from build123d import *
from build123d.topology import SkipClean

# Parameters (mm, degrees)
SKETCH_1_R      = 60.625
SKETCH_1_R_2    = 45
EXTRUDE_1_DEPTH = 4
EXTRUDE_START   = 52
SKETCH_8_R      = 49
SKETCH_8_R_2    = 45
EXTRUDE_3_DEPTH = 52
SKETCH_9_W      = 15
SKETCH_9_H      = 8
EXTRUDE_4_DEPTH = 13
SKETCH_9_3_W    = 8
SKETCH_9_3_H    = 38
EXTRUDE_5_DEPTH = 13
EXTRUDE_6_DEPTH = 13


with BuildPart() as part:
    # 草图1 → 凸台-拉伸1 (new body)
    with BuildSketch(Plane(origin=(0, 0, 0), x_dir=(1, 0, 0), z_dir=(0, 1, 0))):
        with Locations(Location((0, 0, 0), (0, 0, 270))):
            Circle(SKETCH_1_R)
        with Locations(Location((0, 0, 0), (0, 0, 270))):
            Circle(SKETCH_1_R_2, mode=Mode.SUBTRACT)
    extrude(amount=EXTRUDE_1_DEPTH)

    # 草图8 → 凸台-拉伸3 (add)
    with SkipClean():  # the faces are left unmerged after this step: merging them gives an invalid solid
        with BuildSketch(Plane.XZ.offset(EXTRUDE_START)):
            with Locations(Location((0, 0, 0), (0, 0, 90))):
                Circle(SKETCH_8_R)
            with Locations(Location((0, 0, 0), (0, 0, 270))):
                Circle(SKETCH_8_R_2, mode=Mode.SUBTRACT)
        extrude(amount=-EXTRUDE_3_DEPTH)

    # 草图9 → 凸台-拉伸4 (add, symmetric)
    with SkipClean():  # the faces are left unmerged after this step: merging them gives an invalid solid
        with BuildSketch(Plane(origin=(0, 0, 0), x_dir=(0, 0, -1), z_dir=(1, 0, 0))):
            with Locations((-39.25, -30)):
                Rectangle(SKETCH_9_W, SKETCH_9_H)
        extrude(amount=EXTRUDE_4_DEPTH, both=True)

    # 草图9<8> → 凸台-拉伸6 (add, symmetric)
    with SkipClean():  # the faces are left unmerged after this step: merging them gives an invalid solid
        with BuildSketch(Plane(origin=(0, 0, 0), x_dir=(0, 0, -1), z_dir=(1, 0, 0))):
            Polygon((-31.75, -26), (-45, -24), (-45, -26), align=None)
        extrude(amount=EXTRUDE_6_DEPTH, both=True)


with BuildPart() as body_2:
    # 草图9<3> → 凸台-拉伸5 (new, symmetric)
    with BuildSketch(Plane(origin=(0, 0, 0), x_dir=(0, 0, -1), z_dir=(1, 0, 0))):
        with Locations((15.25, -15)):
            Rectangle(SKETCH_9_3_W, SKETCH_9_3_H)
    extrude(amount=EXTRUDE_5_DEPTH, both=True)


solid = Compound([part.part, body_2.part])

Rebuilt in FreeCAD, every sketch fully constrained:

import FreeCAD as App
import Part
import Sketcher
Q = App.Units.Quantity

doc = App.newDocument("Part")
body = doc.addObject("PartDesign::Body", "Body")

sketch1 = body.newObject("Sketcher::SketchObject", "Sketch")
sketch1.AttachmentSupport = (doc.getObject("XZ_Plane"), [""])
sketch1.MapMode = "FlatFace"
sketch1.addGeometry(Part.Circle(App.Vector(0, 0, 0), App.Vector(0, 0, 1), 61), False)
sketch1.addGeometry(Part.Circle(App.Vector(0, 0, 0), App.Vector(0, 0, 1), 45), False)
sketch1.addConstraint(Sketcher.Constraint("Coincident", 0, 3, -1, 1))
sketch1.addConstraint(Sketcher.Constraint("Coincident", 1, 3, -1, 1))
sketch1.addConstraint(Sketcher.Constraint("Diameter", 1, Q("90 mm")))
sketch1.addConstraint(Sketcher.Constraint("Diameter", 0, Q("121.25 mm")))
pad1 = body.newObject("PartDesign::Pad", "Pad")
pad1.Profile = sketch1
pad1.Length = 4
pad1.Reversed = True

sketch2 = body.newObject("Sketcher::SketchObject", "Sketch001")
sketch2.AttachmentSupport = (doc.getObject("XZ_Plane"), [""])
sketch2.MapMode = "FlatFace"
sketch2.AttachmentOffset = App.Placement(App.Vector(0, 0, 52), App.Rotation())
sketch2.addGeometry(Part.Circle(App.Vector(0, 0, 0), App.Vector(0, 0, 1), 49), False)
sketch2.addGeometry(Part.Circle(App.Vector(0, 0, 0), App.Vector(0, 0, 1), 45), False)
sketch2.addConstraint(Sketcher.Constraint("Coincident", 0, 3, -1, 1))
sketch2.addConstraint(Sketcher.Constraint("Coincident", 1, 3, -1, 1))
sketch2.addConstraint(Sketcher.Constraint("Diameter", 0, Q("98 mm")))
sketch2.addConstraint(Sketcher.Constraint("Diameter", 1, Q("90 mm")))
pad2 = body.newObject("PartDesign::Pad", "Pad001")
pad2.Profile = sketch2
pad2.Length = 52
pad2.Reversed = True

sketch3 = body.newObject("Sketcher::SketchObject", "Sketch002")
sketch3.AttachmentSupport = (doc.getObject("YZ_Plane"), [""])
sketch3.MapMode = "FlatFace"
sketch3.addGeometry(Part.LineSegment(App.Vector(-26, 47, 0), App.Vector(-34, 47, 0)), False)
sketch3.addGeometry(Part.LineSegment(App.Vector(-34, 47, 0), App.Vector(-34, 32, 0)), False)
sketch3.addGeometry(Part.LineSegment(App.Vector(-34, 32, 0), App.Vector(-26, 32, 0)), False)
sketch3.addGeometry(Part.LineSegment(App.Vector(-26, 32, 0), App.Vector(-26, 47, 0)), False)
sketch3.addConstraint(Sketcher.Constraint("Coincident", 0, 2, 1, 1))
sketch3.addConstraint(Sketcher.Constraint("Coincident", 1, 2, 2, 1))
sketch3.addConstraint(Sketcher.Constraint("Coincident", 2, 2, 3, 1))
sketch3.addConstraint(Sketcher.Constraint("Coincident", 3, 2, 0, 1))
sketch3.addConstraint(Sketcher.Constraint("Horizontal", 0))
sketch3.addConstraint(Sketcher.Constraint("Vertical", 1))
sketch3.addConstraint(Sketcher.Constraint("Horizontal", 2))
sketch3.addConstraint(Sketcher.Constraint("Vertical", 3))
sketch3.addConstraint(Sketcher.Constraint("DistanceX", 0, 2, 0, 1, Q("8 mm")))
sketch3.addConstraint(Sketcher.Constraint("DistanceY", 1, 2, 1, 1, Q("15 mm")))
sketch3.addConstraint(Sketcher.Constraint("DistanceX", 0, 2, -1, 1, Q("34 mm")))
sketch3.addConstraint(Sketcher.Constraint("DistanceY", -1, 1, 0, 2, Q("46.75 mm")))
pad3 = body.newObject("PartDesign::Pad", "Pad002")
pad3.Profile = sketch3
pad3.Length = 26
pad3.Midplane = True

sketch4 = body.newObject("Sketcher::SketchObject", "Sketch003")
sketch4.AttachmentSupport = (doc.getObject("YZ_Plane"), [""])
sketch4.MapMode = "FlatFace"
sketch4.addGeometry(Part.LineSegment(App.Vector(-26, 31.8, 0), App.Vector(-24, 45, 0)), False)
sketch4.addGeometry(Part.LineSegment(App.Vector(-24, 45, 0), App.Vector(-26, 45, 0)), False)
sketch4.addGeometry(Part.LineSegment(App.Vector(-26, 45, 0), App.Vector(-26, 31.8, 0)), False)
sketch4.addConstraint(Sketcher.Constraint("Coincident", 0, 2, 1, 1))
sketch4.addConstraint(Sketcher.Constraint("Coincident", 1, 2, 2, 1))
sketch4.addConstraint(Sketcher.Constraint("Coincident", 2, 2, 0, 1))
sketch4.addConstraint(Sketcher.Constraint("Horizontal", 1))
sketch4.addConstraint(Sketcher.Constraint("Vertical", 2))
sketch4.addConstraint(Sketcher.Constraint("DistanceX", 1, 2, 1, 1, Q("2 mm")))
sketch4.addConstraint(Sketcher.Constraint("DistanceX", 0, 2, -1, 1, Q("24 mm")))
sketch4.addConstraint(Sketcher.Constraint("DistanceY", -1, 1, 0, 2, Q("45 mm")))
sketch4.addConstraint(Sketcher.Constraint("DistanceY", 2, 2, 2, 1, Q("13.25 mm")))
pad4 = body.newObject("PartDesign::Pad", "Pad003")
pad4.Profile = sketch4
pad4.Length = 26
pad4.Midplane = True
body2 = doc.addObject("PartDesign::Body", "Body001")

sketch5 = body2.newObject("Sketcher::SketchObject", "Sketch004")
sketch5.AttachmentSupport = (doc.getObject("YZ_Plane001"), [""])
sketch5.MapMode = "FlatFace"
sketch5.addGeometry(Part.LineSegment(App.Vector(4, -11, 0), App.Vector(-34, -11, 0)), False)
sketch5.addGeometry(Part.LineSegment(App.Vector(-34, -11, 0), App.Vector(-34, -19, 0)), False)
sketch5.addGeometry(Part.LineSegment(App.Vector(-34, -19, 0), App.Vector(4, -19, 0)), False)
sketch5.addGeometry(Part.LineSegment(App.Vector(4, -19, 0), App.Vector(4, -11, 0)), False)
sketch5.addConstraint(Sketcher.Constraint("Coincident", 0, 2, 1, 1))
sketch5.addConstraint(Sketcher.Constraint("Coincident", 1, 2, 2, 1))
sketch5.addConstraint(Sketcher.Constraint("Coincident", 2, 2, 3, 1))
sketch5.addConstraint(Sketcher.Constraint("Coincident", 3, 2, 0, 1))
sketch5.addConstraint(Sketcher.Constraint("Horizontal", 0))
sketch5.addConstraint(Sketcher.Constraint("Vertical", 1))
sketch5.addConstraint(Sketcher.Constraint("Horizontal", 2))
sketch5.addConstraint(Sketcher.Constraint("Vertical", 3))
sketch5.addConstraint(Sketcher.Constraint("DistanceX", 0, 2, 0, 1, Q("38 mm")))
sketch5.addConstraint(Sketcher.Constraint("DistanceY", 1, 2, 1, 1, Q("8 mm")))
sketch5.addConstraint(Sketcher.Constraint("DistanceX", 0, 2, -1, 1, Q("34 mm")))
sketch5.addConstraint(Sketcher.Constraint("DistanceY", 0, 2, -1, 1, Q("11.25 mm")))
pad5 = body2.newObject("PartDesign::Pad", "Pad004")
pad5.Profile = sketch5
pad5.Length = 26
pad5.Midplane = True

doc.recompute()
